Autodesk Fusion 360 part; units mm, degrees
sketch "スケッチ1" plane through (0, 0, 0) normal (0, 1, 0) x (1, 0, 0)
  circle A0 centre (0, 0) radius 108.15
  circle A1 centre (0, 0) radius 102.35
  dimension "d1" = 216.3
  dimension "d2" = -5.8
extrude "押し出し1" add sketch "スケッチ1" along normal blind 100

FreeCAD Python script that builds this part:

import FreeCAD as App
import Part
import Sketcher
Q = App.Units.Quantity

doc = App.newDocument("Part")
params = doc.addObject("Spreadsheet::Sheet", "Params")
for row, (alias, value) in enumerate([
    ("sketch1_diameter", "216.3 mm"),
    ("sketch1_diameter2", "204.7 mm"),
    ("pad1_length", "100 mm"),
], start=1):
    params.set(f"A{row}", alias)
    params.set(f"B{row}", "=" + value)
    params.setAlias(f"B{row}", alias)

body = doc.addObject("PartDesign::Body", "Body")

sketch1 = doc.addObject("Sketcher::SketchObject", "Sketch")
body.addObject(sketch1)
sketch1.AttachmentSupport = (doc.XZ_Plane, [""])
sketch1.MapMode = "FlatFace"
sketch1.addGeometry([
    Part.Circle(App.Vector(0, 0, 0), App.Vector(0, 0, 1), 108),
    Part.Circle(App.Vector(0, 0, 0), App.Vector(0, 0, 1), 102),
], False)
sketch1.addConstraint([
    Sketcher.Constraint("Coincident", 0, 3, -1, 1),
    Sketcher.Constraint("Coincident", 1, 3, -1, 1),
    Sketcher.Constraint("Diameter", 0, Q("216.3 mm")),
    Sketcher.Constraint("Diameter", 1, Q("204.7 mm")),
])
sketch1.setExpression("Constraints[2]", "Params.sketch1_diameter")
sketch1.setExpression("Constraints[3]", "Params.sketch1_diameter2")
pad1 = doc.addObject("PartDesign::Pad", "Pad")
body.addObject(pad1)
pad1.Profile = sketch1
pad1.setExpression("Length", "Params.pad1_length")
pad1.Reversed = True

doc.recompute()
